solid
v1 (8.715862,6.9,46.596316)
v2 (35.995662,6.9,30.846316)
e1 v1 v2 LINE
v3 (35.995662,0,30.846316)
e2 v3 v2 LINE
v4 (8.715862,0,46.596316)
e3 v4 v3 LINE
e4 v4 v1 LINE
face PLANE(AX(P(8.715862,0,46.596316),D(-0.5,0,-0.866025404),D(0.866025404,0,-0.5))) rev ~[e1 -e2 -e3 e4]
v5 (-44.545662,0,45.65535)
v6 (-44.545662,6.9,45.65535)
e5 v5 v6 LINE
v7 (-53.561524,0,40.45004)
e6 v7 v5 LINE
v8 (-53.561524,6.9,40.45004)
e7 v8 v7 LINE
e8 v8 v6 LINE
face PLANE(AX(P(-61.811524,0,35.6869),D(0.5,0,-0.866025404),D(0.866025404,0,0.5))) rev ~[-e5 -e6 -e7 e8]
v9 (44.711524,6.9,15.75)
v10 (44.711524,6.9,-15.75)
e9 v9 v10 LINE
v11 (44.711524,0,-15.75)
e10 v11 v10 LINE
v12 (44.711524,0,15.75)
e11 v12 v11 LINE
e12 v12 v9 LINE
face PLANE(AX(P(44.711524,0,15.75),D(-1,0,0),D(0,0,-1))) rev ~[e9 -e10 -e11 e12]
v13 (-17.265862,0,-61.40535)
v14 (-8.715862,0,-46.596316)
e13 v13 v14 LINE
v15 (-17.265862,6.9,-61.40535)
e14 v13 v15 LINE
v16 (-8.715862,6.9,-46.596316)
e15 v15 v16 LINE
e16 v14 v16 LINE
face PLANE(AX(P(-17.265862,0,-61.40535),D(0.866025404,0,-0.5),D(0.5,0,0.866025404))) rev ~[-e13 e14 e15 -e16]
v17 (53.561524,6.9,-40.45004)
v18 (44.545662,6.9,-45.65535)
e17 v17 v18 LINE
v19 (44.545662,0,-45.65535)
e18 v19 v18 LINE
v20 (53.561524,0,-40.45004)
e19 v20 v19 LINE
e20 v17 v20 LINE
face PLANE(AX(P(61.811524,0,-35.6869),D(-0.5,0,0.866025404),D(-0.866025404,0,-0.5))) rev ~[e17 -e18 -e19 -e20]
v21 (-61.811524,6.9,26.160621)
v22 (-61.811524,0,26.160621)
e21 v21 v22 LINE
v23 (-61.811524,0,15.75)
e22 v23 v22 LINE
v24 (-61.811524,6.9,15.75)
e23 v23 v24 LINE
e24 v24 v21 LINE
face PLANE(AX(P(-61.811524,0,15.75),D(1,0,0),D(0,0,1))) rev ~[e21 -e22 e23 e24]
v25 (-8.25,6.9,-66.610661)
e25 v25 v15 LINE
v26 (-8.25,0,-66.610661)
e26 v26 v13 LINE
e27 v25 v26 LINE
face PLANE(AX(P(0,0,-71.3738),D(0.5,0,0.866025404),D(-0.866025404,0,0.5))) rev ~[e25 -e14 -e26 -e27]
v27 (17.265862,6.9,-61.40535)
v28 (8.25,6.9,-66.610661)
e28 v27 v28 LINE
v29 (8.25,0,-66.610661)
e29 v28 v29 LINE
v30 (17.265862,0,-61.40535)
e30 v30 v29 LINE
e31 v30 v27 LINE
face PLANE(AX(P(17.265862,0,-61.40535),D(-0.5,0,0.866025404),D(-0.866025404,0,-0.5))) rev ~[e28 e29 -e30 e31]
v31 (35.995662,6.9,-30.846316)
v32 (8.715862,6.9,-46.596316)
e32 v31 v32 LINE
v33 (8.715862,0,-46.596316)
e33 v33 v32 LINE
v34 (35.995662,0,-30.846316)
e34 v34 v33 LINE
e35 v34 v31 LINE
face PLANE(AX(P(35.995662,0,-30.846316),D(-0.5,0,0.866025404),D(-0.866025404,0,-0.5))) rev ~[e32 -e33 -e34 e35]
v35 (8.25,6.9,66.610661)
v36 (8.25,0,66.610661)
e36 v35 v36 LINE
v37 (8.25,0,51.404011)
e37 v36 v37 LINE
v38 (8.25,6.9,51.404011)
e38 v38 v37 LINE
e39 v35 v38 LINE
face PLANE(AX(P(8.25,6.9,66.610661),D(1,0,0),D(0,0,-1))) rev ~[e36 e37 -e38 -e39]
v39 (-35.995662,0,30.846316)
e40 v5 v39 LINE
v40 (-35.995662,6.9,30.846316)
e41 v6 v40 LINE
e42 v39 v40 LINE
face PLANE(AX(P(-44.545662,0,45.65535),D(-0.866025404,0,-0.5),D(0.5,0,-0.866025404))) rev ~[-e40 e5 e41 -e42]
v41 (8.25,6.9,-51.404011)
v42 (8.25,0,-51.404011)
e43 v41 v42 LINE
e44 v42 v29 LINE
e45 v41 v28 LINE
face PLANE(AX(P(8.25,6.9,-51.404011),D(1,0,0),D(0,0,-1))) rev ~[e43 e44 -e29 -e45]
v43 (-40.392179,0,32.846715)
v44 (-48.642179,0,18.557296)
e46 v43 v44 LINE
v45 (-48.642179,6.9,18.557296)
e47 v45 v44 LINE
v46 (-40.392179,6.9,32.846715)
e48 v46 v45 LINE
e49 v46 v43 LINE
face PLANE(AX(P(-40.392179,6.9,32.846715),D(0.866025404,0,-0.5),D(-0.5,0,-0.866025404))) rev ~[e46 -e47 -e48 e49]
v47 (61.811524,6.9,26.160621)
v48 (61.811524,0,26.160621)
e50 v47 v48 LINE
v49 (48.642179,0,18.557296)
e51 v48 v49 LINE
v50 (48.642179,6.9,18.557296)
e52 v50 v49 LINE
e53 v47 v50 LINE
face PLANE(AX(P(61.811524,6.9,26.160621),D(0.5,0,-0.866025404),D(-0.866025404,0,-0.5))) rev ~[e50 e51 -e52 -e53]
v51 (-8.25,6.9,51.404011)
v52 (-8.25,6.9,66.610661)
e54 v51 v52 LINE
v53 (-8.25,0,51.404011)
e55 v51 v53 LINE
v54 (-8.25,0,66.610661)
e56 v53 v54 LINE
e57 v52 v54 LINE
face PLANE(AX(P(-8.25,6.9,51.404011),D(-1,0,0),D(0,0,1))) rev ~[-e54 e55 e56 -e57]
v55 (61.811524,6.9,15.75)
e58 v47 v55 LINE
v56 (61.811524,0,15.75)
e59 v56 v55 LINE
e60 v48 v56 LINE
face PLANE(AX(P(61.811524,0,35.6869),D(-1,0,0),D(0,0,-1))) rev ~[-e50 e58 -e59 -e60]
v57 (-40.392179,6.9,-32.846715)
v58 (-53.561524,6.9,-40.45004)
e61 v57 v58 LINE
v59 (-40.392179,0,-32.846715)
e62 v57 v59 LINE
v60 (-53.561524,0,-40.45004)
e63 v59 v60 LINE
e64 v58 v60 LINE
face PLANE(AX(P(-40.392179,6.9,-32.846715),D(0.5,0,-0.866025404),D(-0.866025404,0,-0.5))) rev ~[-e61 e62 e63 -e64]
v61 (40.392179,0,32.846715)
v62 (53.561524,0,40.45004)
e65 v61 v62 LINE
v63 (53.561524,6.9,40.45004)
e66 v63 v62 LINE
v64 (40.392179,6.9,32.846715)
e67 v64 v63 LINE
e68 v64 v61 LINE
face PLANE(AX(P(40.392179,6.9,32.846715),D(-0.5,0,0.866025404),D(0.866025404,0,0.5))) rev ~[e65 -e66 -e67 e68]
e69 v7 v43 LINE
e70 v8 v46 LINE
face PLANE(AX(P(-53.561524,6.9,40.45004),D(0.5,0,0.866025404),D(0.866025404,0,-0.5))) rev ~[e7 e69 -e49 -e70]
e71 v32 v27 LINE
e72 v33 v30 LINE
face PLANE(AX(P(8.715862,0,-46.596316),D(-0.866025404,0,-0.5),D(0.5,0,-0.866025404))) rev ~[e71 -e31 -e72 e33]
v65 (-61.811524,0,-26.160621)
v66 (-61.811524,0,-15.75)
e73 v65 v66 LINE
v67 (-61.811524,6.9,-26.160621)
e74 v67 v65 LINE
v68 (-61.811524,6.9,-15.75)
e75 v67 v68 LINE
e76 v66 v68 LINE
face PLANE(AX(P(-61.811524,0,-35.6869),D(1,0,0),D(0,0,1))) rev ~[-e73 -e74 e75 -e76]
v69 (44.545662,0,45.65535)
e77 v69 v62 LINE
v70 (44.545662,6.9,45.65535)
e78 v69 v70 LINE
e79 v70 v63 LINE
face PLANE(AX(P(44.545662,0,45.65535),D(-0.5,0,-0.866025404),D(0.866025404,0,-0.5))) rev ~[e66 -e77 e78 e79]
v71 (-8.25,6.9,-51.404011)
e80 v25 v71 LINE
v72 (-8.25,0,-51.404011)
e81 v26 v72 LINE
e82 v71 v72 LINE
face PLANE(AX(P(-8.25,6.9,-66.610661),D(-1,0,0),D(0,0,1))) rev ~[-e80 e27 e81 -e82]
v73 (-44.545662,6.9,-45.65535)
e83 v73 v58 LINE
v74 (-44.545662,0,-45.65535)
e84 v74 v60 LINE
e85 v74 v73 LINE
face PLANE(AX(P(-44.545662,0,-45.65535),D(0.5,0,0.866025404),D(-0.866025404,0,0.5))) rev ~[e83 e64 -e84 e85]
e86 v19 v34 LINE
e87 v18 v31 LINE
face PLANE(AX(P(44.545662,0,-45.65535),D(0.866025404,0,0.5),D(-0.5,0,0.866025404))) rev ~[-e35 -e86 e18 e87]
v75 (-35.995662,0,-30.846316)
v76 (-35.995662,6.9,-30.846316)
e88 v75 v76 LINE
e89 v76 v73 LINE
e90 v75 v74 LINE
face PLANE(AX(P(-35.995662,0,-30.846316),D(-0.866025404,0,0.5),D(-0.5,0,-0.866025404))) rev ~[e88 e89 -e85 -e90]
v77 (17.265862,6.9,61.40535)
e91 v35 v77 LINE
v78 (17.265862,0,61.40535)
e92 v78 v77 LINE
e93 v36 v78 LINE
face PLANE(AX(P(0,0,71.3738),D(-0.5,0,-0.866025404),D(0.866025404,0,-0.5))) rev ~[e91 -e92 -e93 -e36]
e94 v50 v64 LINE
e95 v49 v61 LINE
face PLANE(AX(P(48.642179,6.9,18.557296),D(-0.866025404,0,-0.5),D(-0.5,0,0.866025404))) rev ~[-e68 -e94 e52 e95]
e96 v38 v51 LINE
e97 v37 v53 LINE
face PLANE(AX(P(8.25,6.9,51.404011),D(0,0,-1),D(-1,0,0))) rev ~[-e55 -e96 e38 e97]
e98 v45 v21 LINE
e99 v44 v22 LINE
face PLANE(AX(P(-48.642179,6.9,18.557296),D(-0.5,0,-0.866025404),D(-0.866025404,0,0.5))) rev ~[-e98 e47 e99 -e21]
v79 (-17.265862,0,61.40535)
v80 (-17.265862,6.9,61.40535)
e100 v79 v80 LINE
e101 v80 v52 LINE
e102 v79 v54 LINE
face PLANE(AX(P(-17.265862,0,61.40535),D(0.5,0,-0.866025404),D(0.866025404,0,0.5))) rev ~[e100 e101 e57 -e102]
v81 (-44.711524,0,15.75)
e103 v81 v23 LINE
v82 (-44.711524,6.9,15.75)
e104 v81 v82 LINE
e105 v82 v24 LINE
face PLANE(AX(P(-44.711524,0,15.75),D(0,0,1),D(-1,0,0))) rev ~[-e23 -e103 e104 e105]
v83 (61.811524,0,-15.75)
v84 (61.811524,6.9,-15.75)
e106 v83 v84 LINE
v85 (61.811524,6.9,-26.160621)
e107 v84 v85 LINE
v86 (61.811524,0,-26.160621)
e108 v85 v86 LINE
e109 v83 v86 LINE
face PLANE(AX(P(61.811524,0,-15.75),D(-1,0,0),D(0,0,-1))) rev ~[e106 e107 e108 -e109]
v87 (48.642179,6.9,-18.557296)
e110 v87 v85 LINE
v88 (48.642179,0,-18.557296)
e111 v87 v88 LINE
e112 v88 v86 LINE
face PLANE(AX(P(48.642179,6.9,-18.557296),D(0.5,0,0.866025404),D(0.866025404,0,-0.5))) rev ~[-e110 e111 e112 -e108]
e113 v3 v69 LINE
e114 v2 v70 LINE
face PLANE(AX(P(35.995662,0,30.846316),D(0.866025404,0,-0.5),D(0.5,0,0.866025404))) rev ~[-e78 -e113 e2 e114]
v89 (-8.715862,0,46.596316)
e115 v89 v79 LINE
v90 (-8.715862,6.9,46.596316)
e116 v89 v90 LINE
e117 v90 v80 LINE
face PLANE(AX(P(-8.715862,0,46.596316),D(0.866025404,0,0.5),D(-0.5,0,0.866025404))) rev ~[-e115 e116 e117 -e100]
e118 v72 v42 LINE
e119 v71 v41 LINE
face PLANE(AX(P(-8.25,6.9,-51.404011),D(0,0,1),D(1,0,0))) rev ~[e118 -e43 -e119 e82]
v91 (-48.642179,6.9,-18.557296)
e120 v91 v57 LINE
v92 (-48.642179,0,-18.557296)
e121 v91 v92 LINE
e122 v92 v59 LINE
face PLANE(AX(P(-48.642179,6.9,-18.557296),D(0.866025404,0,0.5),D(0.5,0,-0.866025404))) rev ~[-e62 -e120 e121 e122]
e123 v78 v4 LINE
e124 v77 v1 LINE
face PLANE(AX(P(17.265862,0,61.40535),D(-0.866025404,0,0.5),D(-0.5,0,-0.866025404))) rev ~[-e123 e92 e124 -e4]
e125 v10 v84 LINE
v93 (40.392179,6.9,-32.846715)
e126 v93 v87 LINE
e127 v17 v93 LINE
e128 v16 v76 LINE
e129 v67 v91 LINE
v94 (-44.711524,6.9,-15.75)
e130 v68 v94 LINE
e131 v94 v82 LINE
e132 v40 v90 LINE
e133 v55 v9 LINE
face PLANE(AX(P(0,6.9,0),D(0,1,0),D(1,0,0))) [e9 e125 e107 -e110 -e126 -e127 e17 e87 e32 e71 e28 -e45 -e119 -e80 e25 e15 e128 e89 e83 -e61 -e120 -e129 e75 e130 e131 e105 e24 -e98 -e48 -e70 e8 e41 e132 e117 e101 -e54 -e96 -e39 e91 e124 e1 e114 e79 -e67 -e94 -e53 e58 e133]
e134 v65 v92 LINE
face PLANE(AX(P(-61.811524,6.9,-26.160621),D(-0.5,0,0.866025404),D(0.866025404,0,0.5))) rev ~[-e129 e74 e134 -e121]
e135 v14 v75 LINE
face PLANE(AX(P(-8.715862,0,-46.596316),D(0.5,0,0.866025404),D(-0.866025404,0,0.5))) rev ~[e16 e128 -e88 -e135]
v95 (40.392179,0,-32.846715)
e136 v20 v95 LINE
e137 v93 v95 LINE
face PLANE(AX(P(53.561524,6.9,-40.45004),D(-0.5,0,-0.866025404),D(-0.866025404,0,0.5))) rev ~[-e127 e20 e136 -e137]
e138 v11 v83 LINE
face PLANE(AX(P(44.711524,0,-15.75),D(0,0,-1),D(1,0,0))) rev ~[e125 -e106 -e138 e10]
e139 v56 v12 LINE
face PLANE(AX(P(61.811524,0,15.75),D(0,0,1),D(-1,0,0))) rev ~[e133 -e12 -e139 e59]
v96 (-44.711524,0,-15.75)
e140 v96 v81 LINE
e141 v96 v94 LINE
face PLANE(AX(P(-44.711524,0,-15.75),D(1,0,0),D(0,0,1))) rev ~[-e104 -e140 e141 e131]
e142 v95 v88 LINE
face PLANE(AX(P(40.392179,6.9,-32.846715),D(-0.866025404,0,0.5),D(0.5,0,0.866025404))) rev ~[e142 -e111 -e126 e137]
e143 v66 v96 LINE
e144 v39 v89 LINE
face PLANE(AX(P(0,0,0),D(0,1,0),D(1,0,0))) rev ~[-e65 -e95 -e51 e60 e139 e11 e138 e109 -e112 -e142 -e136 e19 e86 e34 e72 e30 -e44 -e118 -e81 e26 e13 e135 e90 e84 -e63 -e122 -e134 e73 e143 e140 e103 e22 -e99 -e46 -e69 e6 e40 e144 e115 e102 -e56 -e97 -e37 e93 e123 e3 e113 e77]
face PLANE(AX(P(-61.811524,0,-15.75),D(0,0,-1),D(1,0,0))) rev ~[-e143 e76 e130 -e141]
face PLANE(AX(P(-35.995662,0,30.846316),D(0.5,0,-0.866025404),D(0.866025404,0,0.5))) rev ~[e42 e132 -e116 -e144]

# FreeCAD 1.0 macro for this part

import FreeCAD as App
import Part
import Sketcher

V = App.Vector
Q = App.Units.Quantity

doc = App.newDocument("Part")
body = doc.addObject("PartDesign::Body", "Body")

sketch1 = body.newObject("Sketcher::SketchObject", "Sketch")
sketch1.AttachmentSupport = (doc.getObject("XZ_Plane"), [""])
sketch1.MapMode = "FlatFace"
sketch1.addGeometry([
    Part.LineSegment(V(-44.545662, -45.65535, 0), V(-61.811524, -35.6869, 0)),
    Part.LineSegment(V(-61.811524, -35.6869, 0), V(-61.811524, -15.75, 0)),
    Part.LineSegment(V(-61.811524, -15.75, 0), V(-44.711524, -15.75, 0)),
    Part.LineSegment(V(-44.711524, -15.75, 0), V(-44.711524, 15.75, 0)),
    Part.LineSegment(V(-44.711524, 15.75, 0), V(-61.811524, 15.75, 0)),
    Part.LineSegment(V(-61.811524, 15.75, 0), V(-61.811524, 35.6869, 0)),
    Part.LineSegment(V(-61.811524, 35.6869, 0), V(-44.545662, 45.65535, 0)),
    Part.LineSegment(V(-44.545662, 45.65535, 0), V(-35.995662, 30.846316, 0)),
    Part.LineSegment(V(-35.995662, 30.846316, 0), V(-8.715862, 46.596316, 0)),
    Part.LineSegment(V(-8.715862, 46.596316, 0), V(-17.265862, 61.40535, 0)),
    Part.LineSegment(V(-17.265862, 61.40535, 0), V(0, 71.3738, 0)),
    Part.LineSegment(V(0, 71.3738, 0), V(17.265862, 61.40535, 0)),
    Part.LineSegment(V(17.265862, 61.40535, 0), V(8.715862, 46.596316, 0)),
    Part.LineSegment(V(8.715862, 46.596316, 0), V(35.995662, 30.846316, 0)),
    Part.LineSegment(V(35.995662, 30.846316, 0), V(44.545662, 45.65535, 0)),
    Part.LineSegment(V(44.545662, 45.65535, 0), V(61.811524, 35.6869, 0)),
    Part.LineSegment(V(61.811524, 35.6869, 0), V(61.811524, 15.75, 0)),
    Part.LineSegment(V(61.811524, 15.75, 0), V(44.711524, 15.75, 0)),
    Part.LineSegment(V(44.711524, 15.75, 0), V(44.711524, -15.75, 0)),
    Part.LineSegment(V(44.711524, -15.75, 0), V(61.811524, -15.75, 0)),
    Part.LineSegment(V(61.811524, -15.75, 0), V(61.811524, -35.6869, 0)),
    Part.LineSegment(V(61.811524, -35.6869, 0), V(44.545662, -45.65535, 0)),
    Part.LineSegment(V(44.545662, -45.65535, 0), V(35.995662, -30.846316, 0)),
    Part.LineSegment(V(35.995662, -30.846316, 0), V(8.715862, -46.596316, 0)),
    Part.LineSegment(V(8.715862, -46.596316, 0), V(17.265862, -61.40535, 0)),
    Part.LineSegment(V(17.265862, -61.40535, 0), V(0, -71.3738, 0)),
    Part.LineSegment(V(0, -71.3738, 0), V(-17.265862, -61.40535, 0)),
    Part.LineSegment(V(-17.265862, -61.40535, 0), V(-8.715862, -46.596316, 0)),
    Part.LineSegment(V(-8.715862, -46.596316, 0), V(-35.995662, -30.846316, 0)),
    Part.LineSegment(V(-35.995662, -30.846316, 0), V(-44.545662, -45.65535, 0)),
], False)
sketch1.addConstraint([
    Sketcher.Constraint("Coincident", 0, 2, 1, 1),
    Sketcher.Constraint("Coincident", 1, 2, 2, 1),
    Sketcher.Constraint("Coincident", 2, 2, 3, 1),
    Sketcher.Constraint("Coincident", 3, 2, 4, 1),
    Sketcher.Constraint("Coincident", 4, 2, 5, 1),
    Sketcher.Constraint("Coincident", 5, 2, 6, 1),
    Sketcher.Constraint("Coincident", 6, 2, 7, 1),
    Sketcher.Constraint("Coincident", 7, 2, 8, 1),
    Sketcher.Constraint("Coincident", 8, 2, 9, 1),
    Sketcher.Constraint("Coincident", 9, 2, 10, 1),
    Sketcher.Constraint("Coincident", 10, 2, 11, 1),
    Sketcher.Constraint("Coincident", 11, 2, 12, 1),
    Sketcher.Constraint("Coincident", 12, 2, 13, 1),
    Sketcher.Constraint("Coincident", 13, 2, 14, 1),
    Sketcher.Constraint("Coincident", 14, 2, 15, 1),
    Sketcher.Constraint("Coincident", 15, 2, 16, 1),
    Sketcher.Constraint("Coincident", 16, 2, 17, 1),
    Sketcher.Constraint("Coincident", 17, 2, 18, 1),
    Sketcher.Constraint("Coincident", 18, 2, 19, 1),
    Sketcher.Constraint("Coincident", 19, 2, 20, 1),
    Sketcher.Constraint("Coincident", 20, 2, 21, 1),
    Sketcher.Constraint("Coincident", 21, 2, 22, 1),
    Sketcher.Constraint("Coincident", 22, 2, 23, 1),
    Sketcher.Constraint("Coincident", 23, 2, 24, 1),
    Sketcher.Constraint("Coincident", 24, 2, 25, 1),
    Sketcher.Constraint("Coincident", 25, 2, 26, 1),
    Sketcher.Constraint("Coincident", 26, 2, 27, 1),
    Sketcher.Constraint("Coincident", 27, 2, 28, 1),
    Sketcher.Constraint("Coincident", 28, 2, 29, 1),
    Sketcher.Constraint("Coincident", 29, 2, 0, 1),
    Sketcher.Constraint("Vertical", 1),
    Sketcher.Constraint("Horizontal", 2),
    Sketcher.Constraint("Vertical", 3),
    Sketcher.Constraint("Horizontal", 4),
    Sketcher.Constraint("Vertical", 5),
    Sketcher.Constraint("Vertical", 16),
    Sketcher.Constraint("Horizontal", 17),
    Sketcher.Constraint("Vertical", 18),
    Sketcher.Constraint("Horizontal", 19),
    Sketcher.Constraint("Vertical", 20),
    Sketcher.Constraint("Symmetric", 0, 2, 15, 2, -1, 1),
    Sketcher.Constraint("Symmetric", 2, 2, 17, 2, -1, 1),
    Sketcher.Constraint("Symmetric", 4, 2, 19, 2, -1, 1),
    Sketcher.Constraint("Symmetric", 6, 2, 21, 2, -1, 1),
    Sketcher.Constraint("Symmetric", 7, 2, 22, 2, -1, 1),
    Sketcher.Constraint("Symmetric", 8, 2, 23, 2, -1, 1),
    Sketcher.Constraint("Symmetric", 9, 2, 24, 2, -1, 1),
    Sketcher.Constraint("Symmetric", 10, 2, 25, 2, -1, 1),
    Sketcher.Constraint("Symmetric", 11, 2, 26, 2, -1, 1),
    Sketcher.Constraint("Symmetric", 12, 2, 27, 2, -1, 1),
    Sketcher.Constraint("Symmetric", 13, 2, 28, 2, -1, 1),
    Sketcher.Constraint("Symmetric", 14, 2, 29, 2, -1, 1),
    Sketcher.Constraint("Symmetric", 9, 2, 11, 2, -2),
    Sketcher.Constraint("Symmetric", 8, 2, 12, 2, -2),
    Sketcher.Constraint("Symmetric", 7, 2, 13, 2, -2),
    Sketcher.Constraint("Symmetric", 6, 2, 14, 2, -2),
    Sketcher.Constraint("Symmetric", 5, 2, 15, 2, -2),
    Sketcher.Constraint("PointOnObject", 10, 2, -2),
    Sketcher.Constraint("Perpendicular", 6, 7),
    Sketcher.Constraint("Perpendicular", 7, 8),
    Sketcher.Constraint("Perpendicular", 8, 9),
    Sketcher.Constraint("Perpendicular", 9, 10),
    Sketcher.Constraint("Parallel", 10, 21),
    Sketcher.Constraint("Horizontal", 4, 2, 16, 2),
    Sketcher.Constraint("Equal", 7, 9),
    Sketcher.Constraint("Equal", 6, 10),
    Sketcher.Constraint("Angle", 0, Q("150 deg")),
    Sketcher.Constraint("DistanceX", 2, 1, 2, 2, Q("17.1 mm")),
    Sketcher.Constraint("DistanceY", 3, 1, 3, 2, Q("31.5 mm")),
    Sketcher.Constraint("Distance", 7, Q("17.1 mm")),
    Sketcher.Constraint("Distance", 8, Q("31.5 mm")),
    Sketcher.Constraint("DistanceY", 1, 1, 1, 2, Q("19.9369 mm")),
    Sketcher.Constraint("Distance", 0, Q("19.9369 mm")),
])
pad1 = body.newObject("PartDesign::Pad", "Pad")
pad1.Profile = sketch1
pad1.Length = 6.9
pad1.Reversed = True

sketch2 = body.newObject("Sketcher::SketchObject", "Sketch001")
sketch2.AttachmentSupport = (doc.getObject("XZ_Plane"), [""])
sketch2.MapMode = "FlatFace"
sketch2.AttachmentOffset = App.Placement(V(0, 0, -6.9), App.Rotation())
sketch2.addGeometry([
    Part.LineSegment(V(-40.392179, -32.846715, 0), V(-53.561524, -40.45004, 0)),
    Part.LineSegment(V(-53.561524, -40.45004, 0), V(-61.811524, -35.6869, 0)),
    Part.LineSegment(V(-61.811524, -35.6869, 0), V(-61.811524, -26.160621, 0)),
    Part.LineSegment(V(-61.811524, -26.160621, 0), V(-48.642179, -18.557296, 0)),
    Part.LineSegment(V(-48.642179, -18.557296, 0), V(-40.392179, -32.846715, 0)),
    Part.LineSegment(V(0, -71.3738, 0), V(-8.25, -66.610661, 0)),
    Part.LineSegment(V(-8.25, -66.610661, 0), V(-8.25, -51.404011, 0)),
    Part.LineSegment(V(-8.25, -51.404011, 0), V(8.25, -51.404011, 0)),
    Part.LineSegment(V(8.25, -51.404011, 0), V(8.25, -66.610661, 0)),
    Part.LineSegment(V(8.25, -66.610661, 0), V(0, -71.3738, 0)),
    Part.LineSegment(V(61.811524, -35.6869, 0), V(53.561524, -40.45004, 0)),
    Part.LineSegment(V(53.561524, -40.45004, 0), V(40.392179, -32.846715, 0)),
    Part.LineSegment(V(40.392179, -32.846715, 0), V(48.642179, -18.557296, 0)),
    Part.LineSegment(V(48.642179, -18.557296, 0), V(61.811524, -26.160621, 0)),
    Part.LineSegment(V(61.811524, -26.160621, 0), V(61.811524, -35.6869, 0)),
    Part.LineSegment(V(61.811524, 35.6869, 0), V(61.811524, 26.160621, 0)),
    Part.LineSegment(V(61.811524, 26.160621, 0), V(48.642179, 18.557296, 0)),
    Part.LineSegment(V(48.642179, 18.557296, 0), V(40.392179, 32.846715, 0)),
    Part.LineSegment(V(40.392179, 32.846715, 0), V(53.561524, 40.45004, 0)),
    Part.LineSegment(V(53.561524, 40.45004, 0), V(61.811524, 35.6869, 0)),
    Part.LineSegment(V(-8.25, 51.404011, 0), V(-8.25, 66.610661, 0)),
    Part.LineSegment(V(-8.25, 66.610661, 0), V(0, 71.3738, 0)),
    Part.LineSegment(V(0, 71.3738, 0), V(8.25, 66.610661, 0)),
    Part.LineSegment(V(8.25, 66.610661, 0), V(8.25, 51.404011, 0)),
    Part.LineSegment(V(8.25, 51.404011, 0), V(-8.25, 51.404011, 0)),
    Part.LineSegment(V(-48.642179, 18.557296, 0), V(-61.811524, 26.160621, 0)),
    Part.LineSegment(V(-61.811524, 26.160621, 0), V(-61.811524, 35.6869, 0)),
    Part.LineSegment(V(-61.811524, 35.6869, 0), V(-53.561524, 40.45004, 0)),
    Part.LineSegment(V(-53.561524, 40.45004, 0), V(-40.392179, 32.846715, 0)),
    Part.LineSegment(V(-40.392179, 32.846715, 0), V(-48.642179, 18.557296, 0)),
], False)
sketch2.addConstraint([
    Sketcher.Constraint("Coincident", 0, 2, 1, 1),
    Sketcher.Constraint("Coincident", 1, 2, 2, 1),
    Sketcher.Constraint("Coincident", 2, 2, 3, 1),
    Sketcher.Constraint("Coincident", 3, 2, 4, 1),
    Sketcher.Constraint("Coincident", 4, 2, 0, 1),
    Sketcher.Constraint("Coincident", 5, 2, 6, 1),
    Sketcher.Constraint("Coincident", 6, 2, 7, 1),
    Sketcher.Constraint("Coincident", 7, 2, 8, 1),
    Sketcher.Constraint("Coincident", 8, 2, 9, 1),
    Sketcher.Constraint("Coincident", 9, 2, 5, 1),
    Sketcher.Constraint("Coincident", 10, 2, 11, 1),
    Sketcher.Constraint("Coincident", 11, 2, 12, 1),
    Sketcher.Constraint("Coincident", 12, 2, 13, 1),
    Sketcher.Constraint("Coincident", 13, 2, 14, 1),
    Sketcher.Constraint("Coincident", 14, 2, 10, 1),
    Sketcher.Constraint("Coincident", 15, 2, 16, 1),
    Sketcher.Constraint("Coincident", 16, 2, 17, 1),
    Sketcher.Constraint("Coincident", 17, 2, 18, 1),
    Sketcher.Constraint("Coincident", 18, 2, 19, 1),
    Sketcher.Constraint("Coincident", 19, 2, 15, 1),
    Sketcher.Constraint("Coincident", 20, 2, 21, 1),
    Sketcher.Constraint("Coincident", 21, 2, 22, 1),
    Sketcher.Constraint("Coincident", 22, 2, 23, 1),
    Sketcher.Constraint("Coincident", 23, 2, 24, 1),
    Sketcher.Constraint("Coincident", 24, 2, 20, 1),
    Sketcher.Constraint("Coincident", 25, 2, 26, 1),
    Sketcher.Constraint("Coincident", 26, 2, 27, 1),
    Sketcher.Constraint("Coincident", 27, 2, 28, 1),
    Sketcher.Constraint("Coincident", 28, 2, 29, 1),
    Sketcher.Constraint("Coincident", 29, 2, 25, 1),
    Sketcher.Constraint("Vertical", 2),
    Sketcher.Constraint("Vertical", 6),
    Sketcher.Constraint("Horizontal", 7),
    Sketcher.Constraint("Vertical", 8),
    Sketcher.Constraint("Vertical", 14),
    Sketcher.Constraint("Vertical", 15),
    Sketcher.Constraint("Vertical", 20),
    Sketcher.Constraint("Vertical", 23),
    Sketcher.Constraint("Horizontal", 24),
    Sketcher.Constraint("Vertical", 26),
    Sketcher.Constraint("Symmetric", 2, 2, 15, 2, -1, 1),
    Sketcher.Constraint("Symmetric", 3, 2, 16, 2, -1, 1),
    Sketcher.Constraint("Symmetric", 4, 2, 17, 2, -1, 1),
    Sketcher.Constraint("Symmetric", 0, 2, 18, 2, -1, 1),
    Sketcher.Constraint("Symmetric", 8, 2, 20, 2, -1, 1),
    Sketcher.Constraint("Symmetric", 9, 2, 21, 2, -1, 1),
    Sketcher.Constraint("Symmetric", 5, 2, 22, 2, -1, 1),
    Sketcher.Constraint("Symmetric", 13, 2, 25, 2, -1, 1),
    Sketcher.Constraint("Symmetric", 10, 2, 27, 2, -1, 1),
    Sketcher.Constraint("Symmetric", 11, 2, 28, 2, -1, 1),
    Sketcher.Constraint("Symmetric", 12, 2, 29, 2, -1, 1),
    Sketcher.Constraint("Symmetric", 5, 2, 8, 2, -2),
    Sketcher.Constraint("Symmetric", 0, 2, 10, 2, -2),
    Sketcher.Constraint("Symmetric", 4, 2, 11, 2, -2),
    Sketcher.Constraint("Symmetric", 3, 2, 12, 2, -2),
    Sketcher.Constraint("Symmetric", 2, 2, 13, 2, -2),
    Sketcher.Constraint("PointOnObject", 9, 2, -2),
    Sketcher.Constraint("Parallel", 0, 3),
    Sketcher.Constraint("Perpendicular", 3, 4),
    Sketcher.Constraint("Parallel", 1, 5),
    Sketcher.Constraint("Perpendicular", 4, 9),
    Sketcher.Constraint("Parallel", 9, 10),
    Sketcher.Constraint("Parallel", 13, 19),
    Sketcher.Constraint("Parallel", 21, 27),
    Sketcher.Constraint("Equal", 8, 20),
    Sketcher.Constraint("Equal", 0, 3),
    Sketcher.Constraint("Equal", 1, 5),
    Sketcher.Constraint("Angle", 0, Q("-150 deg")),
    Sketcher.Constraint("DistanceX", 7, 1, 7, 2, Q("16.5 mm")),
    Sketcher.Constraint("DistanceY", 6, 1, 6, 2, Q("15.20665 mm")),
    Sketcher.Constraint("DistanceY", 1, 2, -1, 1, Q("35.6869 mm")),
    Sketcher.Constraint("DistanceY", 9, 2, -1, 1, Q("71.3738 mm")),
    Sketcher.Constraint("Distance", 0, Q("15.20665 mm")),
    Sketcher.Constraint("DistanceX", 3, 2, -1, 1, Q("48.642179 mm")),
])
pocket1 = body.newObject("PartDesign::Pocket", "Pocket")
pocket1.Profile = sketch2
pocket1.Length = 10
pocket1.Reversed = True

doc.recompute()
